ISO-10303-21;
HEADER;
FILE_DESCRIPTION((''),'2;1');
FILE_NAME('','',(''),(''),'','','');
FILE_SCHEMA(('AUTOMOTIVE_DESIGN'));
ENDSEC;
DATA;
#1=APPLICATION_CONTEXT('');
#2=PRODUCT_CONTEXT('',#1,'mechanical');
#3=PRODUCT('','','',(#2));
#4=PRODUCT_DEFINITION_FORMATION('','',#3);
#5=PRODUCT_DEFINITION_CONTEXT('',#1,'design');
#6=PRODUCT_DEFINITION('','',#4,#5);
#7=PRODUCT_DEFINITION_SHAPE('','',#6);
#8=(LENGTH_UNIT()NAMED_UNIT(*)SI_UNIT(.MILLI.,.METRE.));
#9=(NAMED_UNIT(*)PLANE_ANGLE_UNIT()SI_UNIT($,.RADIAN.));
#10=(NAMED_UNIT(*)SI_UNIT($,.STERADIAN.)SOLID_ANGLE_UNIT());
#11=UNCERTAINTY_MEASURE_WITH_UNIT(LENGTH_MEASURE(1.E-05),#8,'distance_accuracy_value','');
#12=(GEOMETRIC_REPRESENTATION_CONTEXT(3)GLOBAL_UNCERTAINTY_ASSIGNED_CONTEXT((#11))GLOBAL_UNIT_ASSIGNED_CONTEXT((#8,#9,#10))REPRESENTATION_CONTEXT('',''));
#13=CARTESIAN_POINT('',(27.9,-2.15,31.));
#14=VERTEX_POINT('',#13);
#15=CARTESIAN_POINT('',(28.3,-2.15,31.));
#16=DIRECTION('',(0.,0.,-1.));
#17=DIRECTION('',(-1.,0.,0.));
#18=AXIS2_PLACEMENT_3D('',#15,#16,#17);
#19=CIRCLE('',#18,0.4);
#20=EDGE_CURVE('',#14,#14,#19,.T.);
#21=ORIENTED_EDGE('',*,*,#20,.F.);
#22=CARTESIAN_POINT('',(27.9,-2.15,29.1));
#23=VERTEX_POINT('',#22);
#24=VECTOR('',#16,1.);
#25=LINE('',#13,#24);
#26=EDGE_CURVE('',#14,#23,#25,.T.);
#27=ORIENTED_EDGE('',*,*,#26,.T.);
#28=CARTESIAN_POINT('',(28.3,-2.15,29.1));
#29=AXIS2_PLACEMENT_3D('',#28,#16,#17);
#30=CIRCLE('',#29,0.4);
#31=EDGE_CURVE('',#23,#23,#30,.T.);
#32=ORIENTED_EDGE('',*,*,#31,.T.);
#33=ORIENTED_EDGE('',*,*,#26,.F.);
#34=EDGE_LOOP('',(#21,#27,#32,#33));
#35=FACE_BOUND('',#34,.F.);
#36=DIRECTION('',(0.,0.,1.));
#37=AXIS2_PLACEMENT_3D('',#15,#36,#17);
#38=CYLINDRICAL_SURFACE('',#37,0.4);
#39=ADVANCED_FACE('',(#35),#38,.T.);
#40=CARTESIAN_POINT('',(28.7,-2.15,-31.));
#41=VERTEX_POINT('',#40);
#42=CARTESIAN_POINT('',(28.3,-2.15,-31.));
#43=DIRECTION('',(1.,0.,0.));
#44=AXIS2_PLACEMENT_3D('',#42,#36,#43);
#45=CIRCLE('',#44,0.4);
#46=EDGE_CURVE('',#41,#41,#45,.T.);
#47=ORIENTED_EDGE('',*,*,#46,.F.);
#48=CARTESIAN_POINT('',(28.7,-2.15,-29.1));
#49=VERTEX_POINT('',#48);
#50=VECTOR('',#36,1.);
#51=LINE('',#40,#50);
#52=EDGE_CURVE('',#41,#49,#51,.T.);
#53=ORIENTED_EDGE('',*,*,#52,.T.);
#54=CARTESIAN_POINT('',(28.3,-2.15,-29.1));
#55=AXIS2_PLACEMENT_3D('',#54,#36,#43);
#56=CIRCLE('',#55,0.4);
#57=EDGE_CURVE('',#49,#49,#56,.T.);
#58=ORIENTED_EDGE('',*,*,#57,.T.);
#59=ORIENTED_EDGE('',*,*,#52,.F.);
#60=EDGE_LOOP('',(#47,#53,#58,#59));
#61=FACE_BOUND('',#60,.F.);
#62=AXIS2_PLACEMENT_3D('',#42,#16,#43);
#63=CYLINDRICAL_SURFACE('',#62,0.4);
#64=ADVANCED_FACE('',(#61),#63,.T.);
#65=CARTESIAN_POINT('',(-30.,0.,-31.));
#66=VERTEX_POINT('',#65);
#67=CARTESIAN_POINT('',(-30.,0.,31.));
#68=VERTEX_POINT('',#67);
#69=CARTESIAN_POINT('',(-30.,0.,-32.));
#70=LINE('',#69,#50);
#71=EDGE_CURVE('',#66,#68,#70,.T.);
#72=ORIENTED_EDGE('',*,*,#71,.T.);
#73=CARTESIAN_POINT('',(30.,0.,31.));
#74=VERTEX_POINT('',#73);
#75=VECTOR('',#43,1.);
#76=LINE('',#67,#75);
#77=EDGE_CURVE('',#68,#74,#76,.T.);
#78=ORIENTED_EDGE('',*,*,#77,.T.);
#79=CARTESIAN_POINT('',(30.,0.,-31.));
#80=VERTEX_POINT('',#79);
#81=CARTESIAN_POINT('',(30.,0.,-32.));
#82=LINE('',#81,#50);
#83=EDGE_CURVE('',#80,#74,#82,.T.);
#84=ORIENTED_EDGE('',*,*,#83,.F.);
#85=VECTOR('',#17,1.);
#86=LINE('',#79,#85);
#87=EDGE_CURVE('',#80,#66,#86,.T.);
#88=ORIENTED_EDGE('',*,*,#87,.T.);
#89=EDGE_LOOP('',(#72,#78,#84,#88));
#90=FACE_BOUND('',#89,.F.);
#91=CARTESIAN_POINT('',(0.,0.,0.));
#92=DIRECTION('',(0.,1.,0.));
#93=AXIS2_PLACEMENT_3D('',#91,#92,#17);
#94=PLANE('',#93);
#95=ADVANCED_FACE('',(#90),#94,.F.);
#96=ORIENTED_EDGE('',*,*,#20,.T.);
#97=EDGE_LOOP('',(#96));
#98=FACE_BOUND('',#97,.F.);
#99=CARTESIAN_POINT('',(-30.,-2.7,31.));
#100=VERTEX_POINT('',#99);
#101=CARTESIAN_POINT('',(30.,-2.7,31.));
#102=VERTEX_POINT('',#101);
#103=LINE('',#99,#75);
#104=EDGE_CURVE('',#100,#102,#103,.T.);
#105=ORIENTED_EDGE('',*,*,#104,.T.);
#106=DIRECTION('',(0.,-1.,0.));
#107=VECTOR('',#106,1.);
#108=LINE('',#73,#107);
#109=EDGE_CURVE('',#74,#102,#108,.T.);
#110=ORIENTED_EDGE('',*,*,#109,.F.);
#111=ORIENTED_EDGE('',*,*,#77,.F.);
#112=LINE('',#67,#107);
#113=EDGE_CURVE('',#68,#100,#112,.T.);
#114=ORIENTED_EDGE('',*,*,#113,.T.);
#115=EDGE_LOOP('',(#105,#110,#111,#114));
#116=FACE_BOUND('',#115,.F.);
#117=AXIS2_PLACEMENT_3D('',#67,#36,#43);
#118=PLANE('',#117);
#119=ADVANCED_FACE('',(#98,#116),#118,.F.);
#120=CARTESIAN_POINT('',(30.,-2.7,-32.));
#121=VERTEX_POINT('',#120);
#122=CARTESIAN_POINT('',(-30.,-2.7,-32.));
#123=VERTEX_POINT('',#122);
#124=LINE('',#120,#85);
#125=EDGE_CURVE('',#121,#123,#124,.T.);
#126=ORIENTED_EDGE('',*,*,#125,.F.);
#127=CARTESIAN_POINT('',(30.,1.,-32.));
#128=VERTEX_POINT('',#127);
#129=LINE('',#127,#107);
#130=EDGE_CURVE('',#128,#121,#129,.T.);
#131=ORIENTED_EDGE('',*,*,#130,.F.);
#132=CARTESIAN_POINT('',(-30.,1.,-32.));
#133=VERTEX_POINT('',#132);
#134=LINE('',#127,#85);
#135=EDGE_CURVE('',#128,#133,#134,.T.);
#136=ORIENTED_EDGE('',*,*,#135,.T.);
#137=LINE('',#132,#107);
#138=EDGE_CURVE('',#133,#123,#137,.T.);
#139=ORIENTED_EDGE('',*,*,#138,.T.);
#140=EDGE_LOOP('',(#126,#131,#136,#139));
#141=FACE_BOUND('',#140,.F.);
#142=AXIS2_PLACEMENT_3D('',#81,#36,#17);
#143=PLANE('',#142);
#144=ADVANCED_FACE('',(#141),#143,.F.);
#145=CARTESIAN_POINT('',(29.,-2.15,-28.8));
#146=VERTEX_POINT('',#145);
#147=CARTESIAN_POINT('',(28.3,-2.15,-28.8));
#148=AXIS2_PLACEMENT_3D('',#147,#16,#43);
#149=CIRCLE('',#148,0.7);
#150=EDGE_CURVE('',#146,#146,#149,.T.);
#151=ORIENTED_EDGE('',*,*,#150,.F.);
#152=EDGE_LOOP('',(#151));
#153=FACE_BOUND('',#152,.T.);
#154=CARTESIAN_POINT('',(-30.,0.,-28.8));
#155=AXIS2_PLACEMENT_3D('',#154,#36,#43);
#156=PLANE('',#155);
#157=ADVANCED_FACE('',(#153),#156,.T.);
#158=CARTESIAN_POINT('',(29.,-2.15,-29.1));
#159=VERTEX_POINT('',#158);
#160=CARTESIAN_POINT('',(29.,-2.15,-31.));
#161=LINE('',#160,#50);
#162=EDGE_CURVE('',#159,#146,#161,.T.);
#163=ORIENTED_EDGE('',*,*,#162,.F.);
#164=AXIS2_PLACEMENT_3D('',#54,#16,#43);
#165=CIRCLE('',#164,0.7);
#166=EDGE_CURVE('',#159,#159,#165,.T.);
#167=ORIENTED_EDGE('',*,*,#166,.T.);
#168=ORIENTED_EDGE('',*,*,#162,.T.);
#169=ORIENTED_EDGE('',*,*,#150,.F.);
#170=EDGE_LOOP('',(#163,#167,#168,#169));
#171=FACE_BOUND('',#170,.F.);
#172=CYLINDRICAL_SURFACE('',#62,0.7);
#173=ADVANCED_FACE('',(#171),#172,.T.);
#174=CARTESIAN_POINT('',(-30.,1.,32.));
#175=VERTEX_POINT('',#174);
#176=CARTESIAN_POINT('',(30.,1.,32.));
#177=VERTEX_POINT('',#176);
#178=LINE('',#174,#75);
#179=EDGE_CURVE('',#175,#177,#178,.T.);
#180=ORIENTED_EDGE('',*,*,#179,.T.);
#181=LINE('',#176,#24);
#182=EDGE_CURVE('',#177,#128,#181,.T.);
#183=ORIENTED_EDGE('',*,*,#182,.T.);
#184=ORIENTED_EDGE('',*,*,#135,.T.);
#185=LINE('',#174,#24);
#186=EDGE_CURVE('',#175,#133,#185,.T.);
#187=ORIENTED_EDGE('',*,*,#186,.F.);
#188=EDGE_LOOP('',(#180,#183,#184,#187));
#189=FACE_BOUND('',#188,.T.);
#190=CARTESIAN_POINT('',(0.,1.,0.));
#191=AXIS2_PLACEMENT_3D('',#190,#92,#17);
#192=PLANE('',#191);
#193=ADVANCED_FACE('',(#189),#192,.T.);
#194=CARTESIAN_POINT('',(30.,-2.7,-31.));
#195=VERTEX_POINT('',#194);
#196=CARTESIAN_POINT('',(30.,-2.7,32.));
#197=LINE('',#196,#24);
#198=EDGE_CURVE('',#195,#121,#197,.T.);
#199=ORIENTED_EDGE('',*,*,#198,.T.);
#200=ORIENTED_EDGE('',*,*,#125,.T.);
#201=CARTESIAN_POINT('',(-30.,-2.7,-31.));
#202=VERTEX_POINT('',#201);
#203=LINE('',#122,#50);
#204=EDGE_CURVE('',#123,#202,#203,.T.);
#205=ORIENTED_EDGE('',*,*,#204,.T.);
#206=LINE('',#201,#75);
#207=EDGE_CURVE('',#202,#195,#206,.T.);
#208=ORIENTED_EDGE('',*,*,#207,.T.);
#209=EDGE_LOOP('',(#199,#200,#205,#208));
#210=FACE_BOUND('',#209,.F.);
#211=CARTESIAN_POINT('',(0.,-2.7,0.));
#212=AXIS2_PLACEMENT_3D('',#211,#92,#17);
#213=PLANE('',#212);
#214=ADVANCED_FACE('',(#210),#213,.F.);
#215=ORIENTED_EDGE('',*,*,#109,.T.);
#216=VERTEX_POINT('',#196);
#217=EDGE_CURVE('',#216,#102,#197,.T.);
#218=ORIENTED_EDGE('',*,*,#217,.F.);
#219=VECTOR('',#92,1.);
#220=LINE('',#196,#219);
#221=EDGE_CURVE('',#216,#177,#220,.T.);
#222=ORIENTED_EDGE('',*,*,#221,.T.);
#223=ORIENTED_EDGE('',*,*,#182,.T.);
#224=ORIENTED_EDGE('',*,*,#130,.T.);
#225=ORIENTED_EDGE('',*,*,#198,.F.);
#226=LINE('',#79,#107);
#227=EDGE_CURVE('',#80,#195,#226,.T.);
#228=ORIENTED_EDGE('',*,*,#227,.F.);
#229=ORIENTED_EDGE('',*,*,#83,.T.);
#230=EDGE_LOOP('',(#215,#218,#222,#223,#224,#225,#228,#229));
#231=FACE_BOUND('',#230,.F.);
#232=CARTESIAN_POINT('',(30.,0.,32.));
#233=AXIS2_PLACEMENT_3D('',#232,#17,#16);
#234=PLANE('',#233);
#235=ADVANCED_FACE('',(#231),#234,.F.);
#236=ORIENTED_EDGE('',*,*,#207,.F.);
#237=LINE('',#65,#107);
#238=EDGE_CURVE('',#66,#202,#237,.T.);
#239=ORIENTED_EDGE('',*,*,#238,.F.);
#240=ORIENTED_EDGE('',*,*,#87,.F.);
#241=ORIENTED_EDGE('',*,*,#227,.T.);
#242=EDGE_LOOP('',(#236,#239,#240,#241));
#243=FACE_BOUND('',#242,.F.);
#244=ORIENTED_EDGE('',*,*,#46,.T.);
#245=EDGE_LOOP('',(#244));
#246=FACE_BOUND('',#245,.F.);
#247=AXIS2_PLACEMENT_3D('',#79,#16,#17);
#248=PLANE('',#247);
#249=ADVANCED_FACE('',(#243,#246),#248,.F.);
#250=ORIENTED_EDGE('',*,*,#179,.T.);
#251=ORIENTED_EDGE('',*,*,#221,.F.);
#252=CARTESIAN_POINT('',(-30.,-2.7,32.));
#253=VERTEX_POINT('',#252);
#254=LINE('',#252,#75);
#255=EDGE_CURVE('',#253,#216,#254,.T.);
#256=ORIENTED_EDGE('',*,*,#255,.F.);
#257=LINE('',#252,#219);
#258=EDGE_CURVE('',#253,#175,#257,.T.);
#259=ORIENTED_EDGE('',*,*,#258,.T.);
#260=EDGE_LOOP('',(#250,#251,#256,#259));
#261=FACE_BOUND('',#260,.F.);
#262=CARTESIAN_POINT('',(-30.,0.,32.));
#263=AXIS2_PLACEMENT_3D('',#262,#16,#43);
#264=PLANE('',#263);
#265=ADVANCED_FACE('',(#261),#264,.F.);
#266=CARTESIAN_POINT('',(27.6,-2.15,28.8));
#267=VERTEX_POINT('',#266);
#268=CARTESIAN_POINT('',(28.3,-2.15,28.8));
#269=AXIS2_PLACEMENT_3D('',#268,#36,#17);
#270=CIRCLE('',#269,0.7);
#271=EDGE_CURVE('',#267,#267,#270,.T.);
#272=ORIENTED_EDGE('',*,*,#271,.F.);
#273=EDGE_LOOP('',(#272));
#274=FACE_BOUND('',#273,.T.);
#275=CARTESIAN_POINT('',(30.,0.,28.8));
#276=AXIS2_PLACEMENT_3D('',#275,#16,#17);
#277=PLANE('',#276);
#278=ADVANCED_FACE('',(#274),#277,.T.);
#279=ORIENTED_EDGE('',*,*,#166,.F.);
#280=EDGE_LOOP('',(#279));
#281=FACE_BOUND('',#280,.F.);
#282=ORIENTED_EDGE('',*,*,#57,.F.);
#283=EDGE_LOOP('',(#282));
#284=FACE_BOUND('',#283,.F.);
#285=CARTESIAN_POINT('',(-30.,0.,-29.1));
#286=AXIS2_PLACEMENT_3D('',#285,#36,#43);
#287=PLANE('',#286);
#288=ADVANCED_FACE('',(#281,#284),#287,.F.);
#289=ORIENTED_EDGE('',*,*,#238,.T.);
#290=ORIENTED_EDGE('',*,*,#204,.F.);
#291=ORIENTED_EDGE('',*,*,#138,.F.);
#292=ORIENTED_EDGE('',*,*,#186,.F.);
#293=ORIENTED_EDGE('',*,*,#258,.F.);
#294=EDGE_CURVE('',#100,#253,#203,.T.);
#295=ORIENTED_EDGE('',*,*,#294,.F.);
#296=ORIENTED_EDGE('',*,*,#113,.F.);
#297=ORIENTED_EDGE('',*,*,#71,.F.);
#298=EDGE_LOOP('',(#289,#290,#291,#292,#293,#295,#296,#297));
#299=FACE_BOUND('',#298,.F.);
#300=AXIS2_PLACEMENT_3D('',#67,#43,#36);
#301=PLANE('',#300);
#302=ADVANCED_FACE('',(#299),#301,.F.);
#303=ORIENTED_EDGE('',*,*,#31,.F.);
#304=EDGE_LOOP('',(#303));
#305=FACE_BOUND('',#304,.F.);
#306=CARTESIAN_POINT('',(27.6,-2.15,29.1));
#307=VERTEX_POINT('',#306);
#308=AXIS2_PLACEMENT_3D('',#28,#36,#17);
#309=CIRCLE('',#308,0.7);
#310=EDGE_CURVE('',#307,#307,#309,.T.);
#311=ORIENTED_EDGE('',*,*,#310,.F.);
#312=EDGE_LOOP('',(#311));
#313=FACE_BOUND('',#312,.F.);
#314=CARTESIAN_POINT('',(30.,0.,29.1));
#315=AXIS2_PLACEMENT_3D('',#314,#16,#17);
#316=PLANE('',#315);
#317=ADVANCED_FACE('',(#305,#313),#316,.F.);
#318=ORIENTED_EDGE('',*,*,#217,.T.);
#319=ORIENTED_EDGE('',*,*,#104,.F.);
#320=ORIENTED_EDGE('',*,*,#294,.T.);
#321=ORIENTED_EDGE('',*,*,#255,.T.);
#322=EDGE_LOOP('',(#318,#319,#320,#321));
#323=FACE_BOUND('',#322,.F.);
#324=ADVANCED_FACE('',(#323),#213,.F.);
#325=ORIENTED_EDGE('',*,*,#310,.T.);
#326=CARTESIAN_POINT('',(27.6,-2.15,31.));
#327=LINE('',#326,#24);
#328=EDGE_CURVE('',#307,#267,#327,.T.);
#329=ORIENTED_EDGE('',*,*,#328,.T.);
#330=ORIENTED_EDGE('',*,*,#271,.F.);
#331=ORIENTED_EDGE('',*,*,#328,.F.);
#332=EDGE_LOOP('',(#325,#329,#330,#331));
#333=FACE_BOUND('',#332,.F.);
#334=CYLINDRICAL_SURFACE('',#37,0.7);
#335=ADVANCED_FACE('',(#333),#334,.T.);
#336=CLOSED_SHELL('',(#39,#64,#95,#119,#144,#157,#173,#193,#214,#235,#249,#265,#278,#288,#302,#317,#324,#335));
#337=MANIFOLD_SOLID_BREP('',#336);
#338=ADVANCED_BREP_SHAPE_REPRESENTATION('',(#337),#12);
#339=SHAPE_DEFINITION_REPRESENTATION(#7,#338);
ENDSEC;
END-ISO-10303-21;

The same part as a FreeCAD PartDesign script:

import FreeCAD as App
import Part
import Sketcher
Q = App.Units.Quantity

doc = App.newDocument("Part")
params = doc.addObject("Spreadsheet::Sheet", "Params")
for row, (alias, value) in enumerate([
    ("sketch1_width", "60 mm"),
    ("sketch1_height", "64 mm"),
    ("pad1_length", "1 mm"),
    ("sketch2_width", "60 mm"),
    ("pad2_length", "2.7 mm"),
    ("sketch3_diameter", "1.4 mm"),
    ("pad3_length", "2.2 mm"),
    ("sketch4_diameter", "1.4 mm"),
    ("sketch4_diameter2", "0.8 mm"),
    ("pocket1_length", "1.9 mm"),
    ("sketch5_diameter", "1.4 mm"),
    ("pad4_length", "2.2 mm"),
    ("sketch6_diameter", "1.4 mm"),
    ("sketch6_diameter2", "0.8 mm"),
    ("pocket2_length", "1.9 mm"),
], start=1):
    params.set(f"A{row}", alias)
    params.set(f"B{row}", "=" + value)
    params.setAlias(f"B{row}", alias)

body = doc.addObject("PartDesign::Body", "Body")

# Sketch on XZ plane
sketch1 = doc.addObject("Sketcher::SketchObject", "Sketch")
body.addObject(sketch1)
sketch1.AttachmentSupport = (doc.XZ_Plane, [""])
sketch1.MapMode = "FlatFace"
sketch1.addGeometry([
    Part.LineSegment(App.Vector(-30, 32, 0), App.Vector(30, 32, 0)),
    Part.LineSegment(App.Vector(30, 32, 0), App.Vector(30, -32, 0)),
    Part.LineSegment(App.Vector(30, -32, 0), App.Vector(-30, -32, 0)),
    Part.LineSegment(App.Vector(-30, -32, 0), App.Vector(-30, 32, 0)),
], False)
sketch1.addConstraint([
    Sketcher.Constraint("Coincident", 0, 2, 1, 1),
    Sketcher.Constraint("Coincident", 1, 2, 2, 1),
    Sketcher.Constraint("Coincident", 2, 2, 3, 1),
    Sketcher.Constraint("Coincident", 3, 2, 0, 1),
    Sketcher.Constraint("Horizontal", 0),
    Sketcher.Constraint("Vertical", 1),
    Sketcher.Constraint("Horizontal", 2),
    Sketcher.Constraint("Vertical", 3),
    Sketcher.Constraint("Symmetric", 0, 2, 2, 2, -1, 1),
    Sketcher.Constraint("DistanceX", 0, 1, 0, 2, Q("60 mm")),
    Sketcher.Constraint("DistanceY", 1, 2, 1, 1, Q("64 mm")),
])
sketch1.setExpression("Constraints[9]", "Params.sketch1_width")
sketch1.setExpression("Constraints[10]", "Params.sketch1_height")
pad1 = doc.addObject("PartDesign::Pad", "Pad")
body.addObject(pad1)
pad1.Profile = sketch1
pad1.setExpression("Length", "Params.pad1_length")
pad1.Reversed = True

# Sketch on XZ plane
sketch2 = doc.addObject("Sketcher::SketchObject", "Sketch001")
body.addObject(sketch2)
sketch2.AttachmentSupport = (doc.XZ_Plane, [""])
sketch2.MapMode = "FlatFace"
sketch2.addGeometry([
    Part.LineSegment(App.Vector(-30, 31, 0), App.Vector(-30, 32, 0)),  # 0
    Part.LineSegment(App.Vector(-30, 32, 0), App.Vector(30, 32, 0)),  # 1
    Part.LineSegment(App.Vector(30, 32, 0), App.Vector(30, 31, 0)),  # 2
    Part.LineSegment(App.Vector(30, 31, 0), App.Vector(-30, 31, 0)),  # 3
    Part.LineSegment(App.Vector(-30, -32, 0), App.Vector(-30, -31, 0)),  # 4
    Part.LineSegment(App.Vector(-30, -31, 0), App.Vector(30, -31, 0)),  # 5
    Part.LineSegment(App.Vector(30, -31, 0), App.Vector(30, -32, 0)),  # 6
    Part.LineSegment(App.Vector(30, -32, 0), App.Vector(-30, -32, 0)),  # 7
], False)
sketch2.addConstraint([
    Sketcher.Constraint("Coincident", 0, 2, 1, 1),
    Sketcher.Constraint("Coincident", 1, 2, 2, 1),
    Sketcher.Constraint("Coincident", 2, 2, 3, 1),
    Sketcher.Constraint("Coincident", 3, 2, 0, 1),
    Sketcher.Constraint("Coincident", 4, 2, 5, 1),
    Sketcher.Constraint("Coincident", 5, 2, 6, 1),
    Sketcher.Constraint("Coincident", 6, 2, 7, 1),
    Sketcher.Constraint("Coincident", 7, 2, 4, 1),
    Sketcher.Constraint("Vertical", 0),
    Sketcher.Constraint("Horizontal", 1),
    Sketcher.Constraint("Vertical", 2),
    Sketcher.Constraint("Horizontal", 3),
    Sketcher.Constraint("Vertical", 4),
    Sketcher.Constraint("Horizontal", 5),
    Sketcher.Constraint("Vertical", 6),
    Sketcher.Constraint("Horizontal", 7),
    Sketcher.Constraint("Symmetric", 2, 2, 4, 2, -1, 1),
    Sketcher.Constraint("Symmetric", 0, 2, 6, 2, -1, 1),
    Sketcher.Constraint("Vertical", 3, 2, 4, 2),
    Sketcher.Constraint("DistanceX", 1, 1, 1, 2, Q("60 mm")),
    Sketcher.Constraint("DistanceY", 4, 2, 3, 2, Q("62 mm")),
    Sketcher.Constraint("DistanceY", 6, 2, 1, 2, Q("64 mm")),
])
sketch2.setExpression("Constraints[19]", "Params.sketch2_width")
pad2 = doc.addObject("PartDesign::Pad", "Pad001")
body.addObject(pad2)
pad2.Profile = sketch2
pad2.setExpression("Length", "Params.pad2_length")

# Sketch on XY plane
sketch3 = doc.addObject("Sketcher::SketchObject", "Sketch002")
body.addObject(sketch3)
sketch3.AttachmentSupport = (doc.XY_Plane, [""])
sketch3.MapMode = "FlatFace"
sketch3.AttachmentOffset = App.Placement(App.Vector(0, 0, 31), App.Rotation())
sketch3.addGeometry(Part.Circle(App.Vector(28.3, -2.1, 0), App.Vector(0, 0, 1), 0.7), False)
sketch3.addConstraint([
    Sketcher.Constraint("Diameter", 0, Q("1.4 mm")),
    Sketcher.Constraint("DistanceX", -1, 1, 0, 3, Q("28.3 mm")),
    Sketcher.Constraint("DistanceY", 0, 3, -1, 1, Q("2.15 mm")),
])
sketch3.setExpression("Constraints[0]", "Params.sketch3_diameter")
pad3 = doc.addObject("PartDesign::Pad", "Pad002")
body.addObject(pad3)
pad3.Profile = sketch3
pad3.setExpression("Length", "Params.pad3_length")
pad3.Reversed = True

# Sketch on XY plane
sketch4 = doc.addObject("Sketcher::SketchObject", "Sketch003")
body.addObject(sketch4)
sketch4.AttachmentSupport = (doc.XY_Plane, [""])
sketch4.MapMode = "FlatFace"
sketch4.AttachmentOffset = App.Placement(App.Vector(0, 0, 31), App.Rotation())
sketch4.addGeometry([
    Part.Circle(App.Vector(28.3, -2.15, 0), App.Vector(0, 0, 1), 0.7),
    Part.Circle(App.Vector(28.3, -2.15, 0), App.Vector(0, 0, 1), 0.4),
], False)
sketch4.addConstraint([
    Sketcher.Constraint("Coincident", 1, 3, 0, 3),
    Sketcher.Constraint("Diameter", 0, Q("1.4 mm")),
    Sketcher.Constraint("Diameter", 1, Q("0.8 mm")),
    Sketcher.Constraint("DistanceX", -1, 1, 0, 3, Q("28.3 mm")),
    Sketcher.Constraint("DistanceY", 0, 3, -1, 1, Q("2.15 mm")),
])
sketch4.setExpression("Constraints[1]", "Params.sketch4_diameter")
sketch4.setExpression("Constraints[2]", "Params.sketch4_diameter2")
pocket1 = doc.addObject("PartDesign::Pocket", "Pocket")
body.addObject(pocket1)
pocket1.Profile = sketch4
pocket1.setExpression("Length", "Params.pocket1_length")

# Sketch on XY plane
sketch5 = doc.addObject("Sketcher::SketchObject", "Sketch004")
body.addObject(sketch5)
sketch5.AttachmentSupport = (doc.XY_Plane, [""])
sketch5.MapMode = "FlatFace"
sketch5.AttachmentOffset = App.Placement(App.Vector(0, 0, -31), App.Rotation())
sketch5.addGeometry(Part.Circle(App.Vector(28.3, -2.1, 0), App.Vector(0, 0, 1), 0.7), False)
sketch5.addConstraint([
    Sketcher.Constraint("Diameter", 0, Q("1.4 mm")),
    Sketcher.Constraint("DistanceX", -1, 1, 0, 3, Q("28.3 mm")),
    Sketcher.Constraint("DistanceY", 0, 3, -1, 1, Q("2.15 mm")),
])
sketch5.setExpression("Constraints[0]", "Params.sketch5_diameter")
pad4 = doc.addObject("PartDesign::Pad", "Pad003")
body.addObject(pad4)
pad4.Profile = sketch5
pad4.setExpression("Length", "Params.pad4_length")

# Sketch on XY plane
sketch6 = doc.addObject("Sketcher::SketchObject", "Sketch005")
body.addObject(sketch6)
sketch6.AttachmentSupport = (doc.XY_Plane, [""])
sketch6.MapMode = "FlatFace"
sketch6.AttachmentOffset = App.Placement(App.Vector(0, 0, -31), App.Rotation())
sketch6.addGeometry([
    Part.Circle(App.Vector(28.3, -2.15, 0), App.Vector(0, 0, 1), 0.7),
    Part.Circle(App.Vector(28.3, -2.15, 0), App.Vector(0, 0, 1), 0.4),
], False)
sketch6.addConstraint([
    Sketcher.Constraint("Coincident", 1, 3, 0, 3),
    Sketcher.Constraint("Diameter", 0, Q("1.4 mm")),
    Sketcher.Constraint("Diameter", 1, Q("0.8 mm")),
    Sketcher.Constraint("DistanceX", -1, 1, 0, 3, Q("28.3 mm")),
    Sketcher.Constraint("DistanceY", 0, 3, -1, 1, Q("2.15 mm")),
])
sketch6.setExpression("Constraints[1]", "Params.sketch6_diameter")
sketch6.setExpression("Constraints[2]", "Params.sketch6_diameter2")
pocket2 = doc.addObject("PartDesign::Pocket", "Pocket001")
body.addObject(pocket2)
pocket2.Profile = sketch6
pocket2.setExpression("Length", "Params.pocket2_length")
pocket2.Reversed = True

doc.recompute()
